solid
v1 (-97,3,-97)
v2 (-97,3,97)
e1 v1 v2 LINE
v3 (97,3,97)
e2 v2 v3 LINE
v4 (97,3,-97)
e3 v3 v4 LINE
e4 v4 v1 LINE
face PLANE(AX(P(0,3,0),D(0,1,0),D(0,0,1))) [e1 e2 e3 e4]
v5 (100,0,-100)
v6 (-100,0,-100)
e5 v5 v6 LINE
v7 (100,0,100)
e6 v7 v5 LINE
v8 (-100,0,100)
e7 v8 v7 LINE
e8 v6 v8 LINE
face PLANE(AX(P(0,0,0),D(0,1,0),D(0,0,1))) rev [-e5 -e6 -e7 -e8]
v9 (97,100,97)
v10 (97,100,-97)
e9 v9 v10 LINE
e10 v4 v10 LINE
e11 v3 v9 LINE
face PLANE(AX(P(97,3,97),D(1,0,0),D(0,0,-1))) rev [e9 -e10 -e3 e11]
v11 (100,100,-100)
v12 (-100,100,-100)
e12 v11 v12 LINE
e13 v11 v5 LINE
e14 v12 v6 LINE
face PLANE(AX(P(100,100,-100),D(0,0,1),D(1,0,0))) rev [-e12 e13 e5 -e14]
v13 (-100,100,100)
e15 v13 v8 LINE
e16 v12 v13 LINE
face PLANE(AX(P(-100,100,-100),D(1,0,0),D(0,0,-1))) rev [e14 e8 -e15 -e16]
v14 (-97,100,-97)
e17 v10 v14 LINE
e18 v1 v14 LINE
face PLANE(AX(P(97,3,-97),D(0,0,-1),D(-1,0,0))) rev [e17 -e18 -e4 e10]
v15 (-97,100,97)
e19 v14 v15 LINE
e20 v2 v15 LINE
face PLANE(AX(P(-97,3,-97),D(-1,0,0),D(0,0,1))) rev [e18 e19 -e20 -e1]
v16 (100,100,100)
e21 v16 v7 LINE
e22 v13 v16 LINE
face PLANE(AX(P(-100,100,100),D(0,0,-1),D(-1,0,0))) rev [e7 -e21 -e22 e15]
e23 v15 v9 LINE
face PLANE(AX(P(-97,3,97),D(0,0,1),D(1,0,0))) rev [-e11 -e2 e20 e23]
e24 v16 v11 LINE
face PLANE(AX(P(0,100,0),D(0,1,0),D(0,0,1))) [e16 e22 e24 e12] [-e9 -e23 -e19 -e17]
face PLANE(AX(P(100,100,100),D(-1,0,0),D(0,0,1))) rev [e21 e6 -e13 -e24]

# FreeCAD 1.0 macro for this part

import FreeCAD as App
import Part
import Sketcher
from FreeCAD import Vector

doc = App.newDocument("Part")
params = doc.addObject("Spreadsheet::Sheet", "Params")
for row, (alias, value) in enumerate([
    ("sketch1_width", "200 mm"),
    ("pad1_length", "100 mm"),
    ("sketch2_width", "194 mm"),
    ("pocket1_length", "97 mm"),
], start=1):
    params.set(f"A{row}", alias)
    params.set(f"B{row}", "=" + value)
    params.setAlias(f"B{row}", alias)

body = doc.addObject("PartDesign::Body", "Body")

sketch1 = body.newObject("Sketcher::SketchObject", "Sketch")
sketch1.AttachmentSupport = (doc.getObject("XZ_Plane"), [""])
sketch1.MapMode = "FlatFace"
sketch1.addGeometry([
    Part.LineSegment(Vector(-100, -100, 0), Vector(-100, 100, 0)),
    Part.LineSegment(Vector(-100, 100, 0), Vector(100, 100, 0)),
    Part.LineSegment(Vector(100, 100, 0), Vector(100, -100, 0)),
    Part.LineSegment(Vector(100, -100, 0), Vector(-100, -100, 0)),
], False)
sketch1.addConstraint([
    Sketcher.Constraint("Coincident", 0, 2, 1, 1),
    Sketcher.Constraint("Coincident", 1, 2, 2, 1),
    Sketcher.Constraint("Coincident", 2, 2, 3, 1),
    Sketcher.Constraint("Coincident", 3, 2, 0, 1),
    Sketcher.Constraint("Vertical", 0),
    Sketcher.Constraint("Horizontal", 1),
    Sketcher.Constraint("Vertical", 2),
    Sketcher.Constraint("Horizontal", 3),
    Sketcher.Constraint("Symmetric", 0, 2, 2, 2, -1, 1),
    Sketcher.Constraint("Equal", 3, 0),
    Sketcher.Constraint("DistanceX", 1, 1, 1, 2, 200.0),
])
sketch1.setExpression("Constraints[10]", "Params.sketch1_width")
pad1 = body.newObject("PartDesign::Pad", "Pad")
pad1.Profile = sketch1
pad1.setExpression("Length", "Params.pad1_length")
pad1.Reversed = True

sketch2 = body.newObject("Sketcher::SketchObject", "Sketch001")
sketch2.AttachmentSupport = (doc.getObject("XZ_Plane"), [""])
sketch2.MapMode = "FlatFace"
sketch2.AttachmentOffset = App.Placement(Vector(0, 0, -100), App.Rotation())
sketch2.addGeometry([
    Part.LineSegment(Vector(-97, -97, 0), Vector(-97, 97, 0)),
    Part.LineSegment(Vector(-97, 97, 0), Vector(97, 97, 0)),
    Part.LineSegment(Vector(97, 97, 0), Vector(97, -97, 0)),
    Part.LineSegment(Vector(97, -97, 0), Vector(-97, -97, 0)),
], False)
sketch2.addConstraint([
    Sketcher.Constraint("Coincident", 0, 2, 1, 1),
    Sketcher.Constraint("Coincident", 1, 2, 2, 1),
    Sketcher.Constraint("Coincident", 2, 2, 3, 1),
    Sketcher.Constraint("Coincident", 3, 2, 0, 1),
    Sketcher.Constraint("Vertical", 0),
    Sketcher.Constraint("Horizontal", 1),
    Sketcher.Constraint("Vertical", 2),
    Sketcher.Constraint("Horizontal", 3),
    Sketcher.Constraint("Symmetric", 0, 2, 2, 2, -1, 1),
    Sketcher.Constraint("Equal", 3, 0),
    Sketcher.Constraint("DistanceX", 1, 1, 1, 2, 194.0),
])
sketch2.setExpression("Constraints[10]", "Params.sketch2_width")
pocket1 = body.newObject("PartDesign::Pocket", "Pocket")
pocket1.Profile = sketch2
pocket1.setExpression("Length", "Params.pocket1_length")
pocket1.Reversed = True

doc.recompute()
